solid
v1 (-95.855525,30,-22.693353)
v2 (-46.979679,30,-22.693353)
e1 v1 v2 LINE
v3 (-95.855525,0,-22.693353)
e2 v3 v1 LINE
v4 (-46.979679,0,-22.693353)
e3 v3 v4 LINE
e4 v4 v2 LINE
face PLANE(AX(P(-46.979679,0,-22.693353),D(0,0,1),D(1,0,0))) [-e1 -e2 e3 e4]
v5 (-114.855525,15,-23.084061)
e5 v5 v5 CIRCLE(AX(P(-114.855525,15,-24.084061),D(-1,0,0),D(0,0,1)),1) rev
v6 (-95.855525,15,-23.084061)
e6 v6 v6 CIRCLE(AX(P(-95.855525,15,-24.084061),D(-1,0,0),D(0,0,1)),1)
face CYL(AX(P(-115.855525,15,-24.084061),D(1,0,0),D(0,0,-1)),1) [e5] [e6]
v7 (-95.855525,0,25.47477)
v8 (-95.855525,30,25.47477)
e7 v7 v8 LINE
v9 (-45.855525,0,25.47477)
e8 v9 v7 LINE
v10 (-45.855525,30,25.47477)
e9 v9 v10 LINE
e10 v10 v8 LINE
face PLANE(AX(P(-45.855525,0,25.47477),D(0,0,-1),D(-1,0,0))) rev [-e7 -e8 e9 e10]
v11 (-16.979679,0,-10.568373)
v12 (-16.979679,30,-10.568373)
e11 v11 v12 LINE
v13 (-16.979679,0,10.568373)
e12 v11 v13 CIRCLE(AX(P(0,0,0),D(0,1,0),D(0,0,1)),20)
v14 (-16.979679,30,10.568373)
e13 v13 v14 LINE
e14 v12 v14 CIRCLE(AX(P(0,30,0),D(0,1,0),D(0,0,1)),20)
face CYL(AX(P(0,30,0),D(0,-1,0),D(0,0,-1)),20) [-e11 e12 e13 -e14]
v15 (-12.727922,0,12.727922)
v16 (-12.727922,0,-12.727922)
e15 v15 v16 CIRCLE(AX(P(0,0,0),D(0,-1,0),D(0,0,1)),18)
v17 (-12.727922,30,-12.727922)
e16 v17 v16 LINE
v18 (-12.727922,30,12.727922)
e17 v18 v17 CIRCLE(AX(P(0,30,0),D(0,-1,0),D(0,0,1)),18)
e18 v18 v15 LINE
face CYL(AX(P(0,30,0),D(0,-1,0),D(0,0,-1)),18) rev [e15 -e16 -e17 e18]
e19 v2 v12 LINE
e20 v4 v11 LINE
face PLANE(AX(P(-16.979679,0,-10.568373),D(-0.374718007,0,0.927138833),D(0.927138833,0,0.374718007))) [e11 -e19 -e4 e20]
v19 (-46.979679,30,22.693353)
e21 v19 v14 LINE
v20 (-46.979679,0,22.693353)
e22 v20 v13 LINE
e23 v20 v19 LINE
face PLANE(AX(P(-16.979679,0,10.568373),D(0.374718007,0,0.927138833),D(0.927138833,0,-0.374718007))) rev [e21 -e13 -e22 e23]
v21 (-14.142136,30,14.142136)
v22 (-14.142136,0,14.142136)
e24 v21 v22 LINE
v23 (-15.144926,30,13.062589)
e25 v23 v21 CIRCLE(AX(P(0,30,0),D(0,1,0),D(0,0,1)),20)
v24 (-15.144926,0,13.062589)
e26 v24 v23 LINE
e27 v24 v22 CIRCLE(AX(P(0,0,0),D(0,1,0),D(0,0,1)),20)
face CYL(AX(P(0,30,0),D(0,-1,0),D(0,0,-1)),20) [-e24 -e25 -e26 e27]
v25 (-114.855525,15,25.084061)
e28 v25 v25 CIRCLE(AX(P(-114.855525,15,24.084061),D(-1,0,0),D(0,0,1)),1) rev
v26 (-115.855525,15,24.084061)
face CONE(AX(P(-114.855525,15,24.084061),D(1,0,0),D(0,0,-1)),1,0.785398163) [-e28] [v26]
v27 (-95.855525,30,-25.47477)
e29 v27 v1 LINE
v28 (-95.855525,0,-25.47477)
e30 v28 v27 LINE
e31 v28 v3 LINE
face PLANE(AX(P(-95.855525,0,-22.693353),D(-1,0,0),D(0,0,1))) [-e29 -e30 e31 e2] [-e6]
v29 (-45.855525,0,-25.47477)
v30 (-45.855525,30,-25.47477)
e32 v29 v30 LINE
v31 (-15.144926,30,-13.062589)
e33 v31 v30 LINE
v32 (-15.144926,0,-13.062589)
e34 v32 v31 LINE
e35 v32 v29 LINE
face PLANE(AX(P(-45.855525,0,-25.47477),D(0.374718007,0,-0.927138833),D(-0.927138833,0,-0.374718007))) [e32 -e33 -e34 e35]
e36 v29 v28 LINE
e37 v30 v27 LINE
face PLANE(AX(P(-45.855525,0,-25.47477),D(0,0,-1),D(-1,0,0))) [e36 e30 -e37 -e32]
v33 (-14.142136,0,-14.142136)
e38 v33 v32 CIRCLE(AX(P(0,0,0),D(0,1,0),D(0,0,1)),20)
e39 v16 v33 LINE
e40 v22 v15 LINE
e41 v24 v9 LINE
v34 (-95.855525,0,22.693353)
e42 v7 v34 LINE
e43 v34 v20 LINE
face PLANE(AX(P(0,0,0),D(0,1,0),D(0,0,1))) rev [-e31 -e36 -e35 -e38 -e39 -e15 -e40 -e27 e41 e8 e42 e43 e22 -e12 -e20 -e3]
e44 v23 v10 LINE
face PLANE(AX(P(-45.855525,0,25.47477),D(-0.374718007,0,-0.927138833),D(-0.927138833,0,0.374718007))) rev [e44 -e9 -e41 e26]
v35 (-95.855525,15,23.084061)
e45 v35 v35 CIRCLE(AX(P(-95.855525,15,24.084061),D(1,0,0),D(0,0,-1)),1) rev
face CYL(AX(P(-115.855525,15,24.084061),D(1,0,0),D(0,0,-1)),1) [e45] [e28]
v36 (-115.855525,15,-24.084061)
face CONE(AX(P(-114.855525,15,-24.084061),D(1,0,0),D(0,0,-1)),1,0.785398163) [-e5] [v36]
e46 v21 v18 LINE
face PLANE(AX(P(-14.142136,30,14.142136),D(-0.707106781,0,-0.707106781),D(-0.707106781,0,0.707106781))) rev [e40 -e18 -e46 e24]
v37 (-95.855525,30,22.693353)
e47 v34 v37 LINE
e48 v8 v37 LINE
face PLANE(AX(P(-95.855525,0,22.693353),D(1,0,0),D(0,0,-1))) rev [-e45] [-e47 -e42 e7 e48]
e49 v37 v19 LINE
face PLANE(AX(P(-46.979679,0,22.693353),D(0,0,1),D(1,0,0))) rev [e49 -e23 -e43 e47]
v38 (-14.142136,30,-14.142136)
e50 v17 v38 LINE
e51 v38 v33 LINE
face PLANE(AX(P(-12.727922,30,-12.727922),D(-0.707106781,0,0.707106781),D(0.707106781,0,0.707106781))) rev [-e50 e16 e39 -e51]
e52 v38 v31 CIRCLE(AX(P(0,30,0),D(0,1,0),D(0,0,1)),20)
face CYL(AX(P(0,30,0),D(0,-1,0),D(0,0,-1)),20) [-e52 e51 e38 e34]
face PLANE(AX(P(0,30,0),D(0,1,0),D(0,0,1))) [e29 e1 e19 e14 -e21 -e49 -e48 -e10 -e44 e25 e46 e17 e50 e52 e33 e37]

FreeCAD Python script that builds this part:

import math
import FreeCAD as App
import Part
import Sketcher


def edges_at(feature, points):
    """Names of the edges that pass closest to the given points."""
    edges = feature.Shape.Edges
    near = lambda p: min(range(len(edges)), key=lambda i: edges[i].distToShape(Part.Vertex(*p))[0])
    return sorted({f"Edge{near(p) + 1}" for p in points})


def add_polygon(sketch, points):
    """Adds a closed chain of lines whose ends are joined by coincident constraints."""
    first, n = sketch.GeometryCount, len(points)
    for a, b in zip(points, points[1:] + points[:1]):
        sketch.addGeometry(Part.LineSegment(App.Vector(*a, 0), App.Vector(*b, 0)), False)
    for i in range(n):
        sketch.addConstraint(Sketcher.Constraint("Coincident", first + i, 2, first + (i + 1) % n, 1))

doc = App.newDocument("Part")
body = doc.addObject("PartDesign::Body", "Body")

# Sketch on XZ plane
sketch1 = doc.addObject("Sketcher::SketchObject", "Sketch")
body.addObject(sketch1)
sketch1.AttachmentSupport = (doc.XZ_Plane, [""])
sketch1.MapMode = "FlatFace"
sketch1.addGeometry(Part.LineSegment(App.Vector(-12.7, -12.7, 0), App.Vector(-14.1, -14.1, 0)), False)
sketch1.addGeometry(Part.ArcOfCircle(Part.Circle(App.Vector(0, 0, 0), App.Vector(0, 0, 1), 20), math.radians(135), math.radians(225)), False)
sketch1.addGeometry(Part.LineSegment(App.Vector(-14.1, 14.1, 0), App.Vector(-12.7, 12.7, 0)), False)
sketch1.addGeometry(Part.ArcOfCircle(Part.Circle(App.Vector(0, 0, 0), App.Vector(0, 0, 1), 18), math.radians(135), math.radians(225)), False)
sketch1.addConstraint(Sketcher.Constraint("Coincident", 0, 2, 1, 2))
sketch1.addConstraint(Sketcher.Constraint("Coincident", 1, 1, 2, 1))
sketch1.addConstraint(Sketcher.Constraint("Coincident", 2, 2, 3, 1))
sketch1.addConstraint(Sketcher.Constraint("Coincident", 3, 2, 0, 1))
sketch1.addConstraint(Sketcher.Constraint("Coincident", 1, 3, -1, 1))
sketch1.addConstraint(Sketcher.Constraint("Coincident", 3, 3, -1, 1))
sketch1.addConstraint(Sketcher.Constraint("Perpendicular", 0, 2))
sketch1.addConstraint(Sketcher.Constraint("Vertical", 0, 2, 1, 1))
sketch1.addConstraint(Sketcher.Constraint("Vertical", 2, 2, 3, 2))
sketch1.addConstraint(Sketcher.Constraint("Radius", 1, 20.0))
sketch1.addConstraint(Sketcher.Constraint("Radius", 3, 18.0))
sketch1.addConstraint(Sketcher.Constraint("DistanceY", 0, 2, 1, 1, 28.284271))
pad1 = doc.addObject("PartDesign::Pad", "Pad")
body.addObject(pad1)
pad1.Profile = sketch1
pad1.Length = 30
pad1.Reversed = True

# Sketch on XZ plane
sketch2 = doc.addObject("Sketcher::SketchObject", "Sketch001")
body.addObject(sketch2)
sketch2.AttachmentSupport = (doc.XZ_Plane, [""])
sketch2.MapMode = "FlatFace"
sketch2.addGeometry(Part.LineSegment(App.Vector(-47, -22.7, 0), App.Vector(-17, -10.6, 0)), False)
sketch2.addGeometry(Part.ArcOfCircle(Part.Circle(App.Vector(0, 0, 0), App.Vector(0, 0, 1), 20), math.radians(135), math.radians(212)), False)
sketch2.addGeometry(Part.LineSegment(App.Vector(-14.1, 14.1, 0), App.Vector(-12.7, 12.7, 0)), False)
sketch2.addGeometry(Part.ArcOfCircle(Part.Circle(App.Vector(0, 0, 0), App.Vector(0, 0, 1), 18), math.radians(135), math.radians(225)), False)
sketch2.addGeometry(Part.LineSegment(App.Vector(-12.7, -12.7, 0), App.Vector(-14.1, -14.1, 0)), False)
sketch2.addGeometry(Part.ArcOfCircle(Part.Circle(App.Vector(0, 0, 0), App.Vector(0, 0, 1), 20), math.radians(-139.22), math.radians(-135)), False)
sketch2.addGeometry(Part.LineSegment(App.Vector(-15.1, -13.1, 0), App.Vector(-45.9, -25.5, 0)), False)
sketch2.addGeometry(Part.LineSegment(App.Vector(-45.9, -25.5, 0), App.Vector(-47, -22.7, 0)), False)
sketch2.addConstraint(Sketcher.Constraint("Coincident", 0, 2, 1, 2))
sketch2.addConstraint(Sketcher.Constraint("Coincident", 1, 1, 2, 1))
sketch2.addConstraint(Sketcher.Constraint("Coincident", 2, 2, 3, 1))
sketch2.addConstraint(Sketcher.Constraint("Coincident", 3, 2, 4, 1))
sketch2.addConstraint(Sketcher.Constraint("Coincident", 4, 2, 5, 2))
sketch2.addConstraint(Sketcher.Constraint("Coincident", 5, 1, 6, 1))
sketch2.addConstraint(Sketcher.Constraint("Coincident", 6, 2, 7, 1))
sketch2.addConstraint(Sketcher.Constraint("Coincident", 7, 2, 0, 1))
sketch2.addConstraint(Sketcher.Constraint("Coincident", 1, 3, -1, 1))
sketch2.addConstraint(Sketcher.Constraint("Coincident", 3, 3, -1, 1))
sketch2.addConstraint(Sketcher.Constraint("Coincident", 5, 3, -1, 1))
sketch2.addConstraint(Sketcher.Constraint("Equal", 1, 5))
sketch2.addConstraint(Sketcher.Constraint("Perpendicular", 2, 4))
sketch2.addConstraint(Sketcher.Constraint("Parallel", 0, 6))
sketch2.addConstraint(Sketcher.Constraint("Perpendicular", 6, 7))
sketch2.addConstraint(Sketcher.Constraint("Vertical", 2, 2, 3, 2))
sketch2.addConstraint(Sketcher.Constraint("Vertical", 1, 1, 4, 2))
sketch2.addConstraint(Sketcher.Constraint("Radius", 1, 20.0))
sketch2.addConstraint(Sketcher.Constraint("Radius", 3, 18.0))
sketch2.addConstraint(Sketcher.Constraint("Distance", 7, 3.0))
sketch2.addConstraint(Sketcher.Constraint("DistanceX", 7, 2, 0, 2, 30.0))
sketch2.addConstraint(Sketcher.Constraint("DistanceX", 6, 2, 5, 1, 30.710599))
sketch2.addConstraint(Sketcher.Constraint("DistanceX", 0, 2, -1, 1, 16.979679))
sketch2.addConstraint(Sketcher.Constraint("DistanceY", 0, 2, 1, 1, 24.710508))
pad2 = doc.addObject("PartDesign::Pad", "Pad001")
body.addObject(pad2)
pad2.Profile = sketch2
pad2.Length = 30
pad2.Reversed = True

# Sketch on XZ plane
sketch3 = doc.addObject("Sketcher::SketchObject", "Sketch002")
body.addObject(sketch3)
sketch3.AttachmentSupport = (doc.XZ_Plane, [""])
sketch3.MapMode = "FlatFace"
sketch3.AttachmentOffset = App.Placement(App.Vector(0, 0, -30), App.Rotation())
add_polygon(sketch3, [(-45.9, -25.5), (-95.9, -25.5), (-95.9, -22.7), (-47, -22.7)])  # lines 0-3
sketch3.addConstraint(Sketcher.Constraint("Horizontal", 0))
sketch3.addConstraint(Sketcher.Constraint("Vertical", 1))
sketch3.addConstraint(Sketcher.Constraint("Horizontal", 2))
sketch3.addConstraint(Sketcher.Constraint("DistanceX", 0, 2, 0, 1, 50.0))
sketch3.addConstraint(Sketcher.Constraint("Distance", 3, 3.0))
sketch3.addConstraint(Sketcher.Constraint("DistanceX", 2, 1, 2, 2, 48.875846))
sketch3.addConstraint(Sketcher.Constraint("DistanceY", 0, 2, -1, 1, 25.47477))
sketch3.addConstraint(Sketcher.Constraint("DistanceX", 2, 2, -1, 1, 46.979679))
pad3 = doc.addObject("PartDesign::Pad", "Pad002")
body.addObject(pad3)
pad3.Profile = sketch3
pad3.Length = 30
doc.recompute()

mirrored = doc.addObject("PartDesign::Mirrored", "Mirrored")
body.addObject(mirrored)
mirrored.Originals = [pad2, pad3]
mirrored.MirrorPlane = (doc.XY_Plane, [""])
body.Tip = mirrored

# Sketch on YZ plane
sketch4 = doc.addObject("Sketcher::SketchObject", "Sketch003")
body.addObject(sketch4)
sketch4.AttachmentSupport = (doc.YZ_Plane, [""])
sketch4.MapMode = "FlatFace"
sketch4.AttachmentOffset = App.Placement(App.Vector(0, 0, -95.855525), App.Rotation())
sketch4.addGeometry(Part.Circle(App.Vector(15, 24.1, 0), App.Vector(0, 0, 1), 1), False)
sketch4.addConstraint(Sketcher.Constraint("Diameter", 0, 2.0))
sketch4.addConstraint(Sketcher.Constraint("DistanceX", -1, 1, 0, 3, 15.0))
sketch4.addConstraint(Sketcher.Constraint("DistanceY", -1, 1, 0, 3, 24.084061))
pad4 = doc.addObject("PartDesign::Pad", "Pad003")
body.addObject(pad4)
pad4.Profile = sketch4
pad4.Length = 20
pad4.Reversed = True
doc.recompute()

chamfer = doc.addObject("PartDesign::Chamfer", "Chamfer")
body.addObject(chamfer)
chamfer.Base = (pad4, edges_at(pad4, [(-115.856, 15, 25.084)]))
chamfer.Size = 1
doc.recompute()

mirrored2 = doc.addObject("PartDesign::Mirrored", "Mirrored001")
body.addObject(mirrored2)
mirrored2.Originals = [pad4]
mirrored2.MirrorPlane = (doc.XY_Plane, [""])
body.Tip = mirrored2
doc.recompute()

chamfer2 = doc.addObject("PartDesign::Chamfer", "Chamfer001")
body.addObject(chamfer2)
chamfer2.Base = (mirrored2, edges_at(mirrored2, [(-115.856, 15, -25.084)]))
chamfer2.Size = 1

doc.recompute()
